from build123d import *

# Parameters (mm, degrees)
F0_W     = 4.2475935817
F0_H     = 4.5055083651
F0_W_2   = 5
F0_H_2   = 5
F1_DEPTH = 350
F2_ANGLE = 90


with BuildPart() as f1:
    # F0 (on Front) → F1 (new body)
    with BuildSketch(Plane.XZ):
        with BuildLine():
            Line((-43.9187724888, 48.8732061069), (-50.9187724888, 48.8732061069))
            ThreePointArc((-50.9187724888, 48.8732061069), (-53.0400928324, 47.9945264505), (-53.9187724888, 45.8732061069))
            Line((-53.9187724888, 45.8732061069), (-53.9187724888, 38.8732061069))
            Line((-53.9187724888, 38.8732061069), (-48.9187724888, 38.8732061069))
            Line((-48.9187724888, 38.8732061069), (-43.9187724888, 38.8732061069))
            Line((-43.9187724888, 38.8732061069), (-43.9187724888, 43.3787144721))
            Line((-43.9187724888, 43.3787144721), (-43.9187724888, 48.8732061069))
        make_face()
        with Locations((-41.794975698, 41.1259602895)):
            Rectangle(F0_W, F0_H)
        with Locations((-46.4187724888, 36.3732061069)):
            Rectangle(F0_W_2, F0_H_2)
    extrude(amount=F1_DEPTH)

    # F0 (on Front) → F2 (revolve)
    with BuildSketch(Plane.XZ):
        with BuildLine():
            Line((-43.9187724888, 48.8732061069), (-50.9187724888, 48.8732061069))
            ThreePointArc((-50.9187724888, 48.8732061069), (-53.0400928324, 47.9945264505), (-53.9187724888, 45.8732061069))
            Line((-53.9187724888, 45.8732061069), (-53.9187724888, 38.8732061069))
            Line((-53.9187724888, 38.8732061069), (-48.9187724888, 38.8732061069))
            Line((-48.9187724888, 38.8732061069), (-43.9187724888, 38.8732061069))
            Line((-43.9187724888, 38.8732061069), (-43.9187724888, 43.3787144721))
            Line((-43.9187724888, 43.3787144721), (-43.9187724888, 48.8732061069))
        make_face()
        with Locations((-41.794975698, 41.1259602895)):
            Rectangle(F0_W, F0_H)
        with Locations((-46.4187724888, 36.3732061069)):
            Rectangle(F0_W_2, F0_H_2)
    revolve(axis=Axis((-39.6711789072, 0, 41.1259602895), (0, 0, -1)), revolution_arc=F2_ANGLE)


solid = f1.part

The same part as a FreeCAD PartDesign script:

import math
import FreeCAD as App
import Part
import Sketcher
Q = App.Units.Quantity

doc = App.newDocument("Part")
body = doc.addObject("PartDesign::Body", "Body")

sketch1 = body.newObject("Sketcher::SketchObject", "Sketch")
sketch1.AttachmentSupport = (doc.getObject("XZ_Plane"), [""])
sketch1.MapMode = "FlatFace"
sketch1.addGeometry([
    Part.LineSegment(App.Vector(-43.9, 48.9, 0), App.Vector(-50.9, 48.9, 0)),
    Part.ArcOfCircle(Part.Circle(App.Vector(-50.9, 45.9, 0), App.Vector(0, 0, 1), 3), math.radians(90), math.radians(180)),
    Part.LineSegment(App.Vector(-53.9, 45.9, 0), App.Vector(-53.9, 38.9, 0)),
    Part.LineSegment(App.Vector(-53.9, 38.9, 0), App.Vector(-48.9, 38.9, 0)),
    Part.LineSegment(App.Vector(-48.9, 38.9, 0), App.Vector(-48.9, 33.9, 0)),
    Part.LineSegment(App.Vector(-48.9, 33.9, 0), App.Vector(-43.9, 33.9, 0)),
    Part.LineSegment(App.Vector(-43.9, 33.9, 0), App.Vector(-43.9, 38.9, 0)),
    Part.LineSegment(App.Vector(-43.9, 38.9, 0), App.Vector(-39.7, 38.9, 0)),
    Part.LineSegment(App.Vector(-39.7, 38.9, 0), App.Vector(-39.7, 43.4, 0)),
    Part.LineSegment(App.Vector(-39.7, 43.4, 0), App.Vector(-43.9, 43.4, 0)),
    Part.LineSegment(App.Vector(-43.9, 43.4, 0), App.Vector(-43.9, 48.9, 0)),
], False)
sketch1.addConstraint([
    Sketcher.Constraint("Tangent", 0, 2, 1, 1),
    Sketcher.Constraint("Tangent", 1, 2, 2, 1),
    Sketcher.Constraint("Coincident", 2, 2, 3, 1),
    Sketcher.Constraint("Coincident", 3, 2, 4, 1),
    Sketcher.Constraint("Coincident", 4, 2, 5, 1),
    Sketcher.Constraint("Coincident", 5, 2, 6, 1),
    Sketcher.Constraint("Coincident", 6, 2, 7, 1),
    Sketcher.Constraint("Coincident", 7, 2, 8, 1),
    Sketcher.Constraint("Coincident", 8, 2, 9, 1),
    Sketcher.Constraint("Coincident", 9, 2, 10, 1),
    Sketcher.Constraint("Coincident", 10, 2, 0, 1),
    Sketcher.Constraint("Horizontal", 0),
    Sketcher.Constraint("Vertical", 2),
    Sketcher.Constraint("Horizontal", 3),
    Sketcher.Constraint("Vertical", 4),
    Sketcher.Constraint("Horizontal", 5),
    Sketcher.Constraint("Vertical", 6),
    Sketcher.Constraint("Horizontal", 7),
    Sketcher.Constraint("Vertical", 8),
    Sketcher.Constraint("Horizontal", 9),
    Sketcher.Constraint("Vertical", 10),
    Sketcher.Constraint("Horizontal", 3, 2, 6, 2),
    Sketcher.Constraint("Vertical", 6, 2, 9, 2),
    Sketcher.Constraint("Equal", 3, 5),
    Sketcher.Constraint("Equal", 0, 2),
    Sketcher.Constraint("Equal", 5, 4),
    Sketcher.Constraint("Radius", 1, Q("3 mm")),
    Sketcher.Constraint("DistanceX", 0, 2, 0, 1, Q("7 mm")),
    Sketcher.Constraint("DistanceY", 8, 1, 8, 2, Q("4.505508 mm")),
    Sketcher.Constraint("DistanceX", 7, 1, 7, 2, Q("4.247594 mm")),
    Sketcher.Constraint("DistanceX", 7, 2, -1, 1, Q("39.671179 mm")),
    Sketcher.Constraint("DistanceY", -1, 1, 1, 3, Q("45.873206 mm")),
])
pad1 = body.newObject("PartDesign::Pad", "Pad")
pad1.Profile = sketch1
pad1.Length = 350

sketch2 = body.newObject("Sketcher::SketchObject", "Sketch001")
sketch2.AttachmentSupport = (doc.getObject("XZ_Plane"), [""])
sketch2.MapMode = "FlatFace"
sketch2.addGeometry([
    Part.LineSegment(App.Vector(-43.9, 48.9, 0), App.Vector(-50.9, 48.9, 0)),
    Part.ArcOfCircle(Part.Circle(App.Vector(-50.9, 45.9, 0), App.Vector(0, 0, 1), 3), math.radians(90), math.radians(180)),
    Part.LineSegment(App.Vector(-53.9, 45.9, 0), App.Vector(-53.9, 38.9, 0)),
    Part.LineSegment(App.Vector(-53.9, 38.9, 0), App.Vector(-48.9, 38.9, 0)),
    Part.LineSegment(App.Vector(-48.9, 38.9, 0), App.Vector(-48.9, 33.9, 0)),
    Part.LineSegment(App.Vector(-48.9, 33.9, 0), App.Vector(-43.9, 33.9, 0)),
    Part.LineSegment(App.Vector(-43.9, 33.9, 0), App.Vector(-43.9, 38.9, 0)),
    Part.LineSegment(App.Vector(-43.9, 38.9, 0), App.Vector(-39.7, 38.9, 0)),
    Part.LineSegment(App.Vector(-39.7, 38.9, 0), App.Vector(-39.7, 43.4, 0)),
    Part.LineSegment(App.Vector(-39.7, 43.4, 0), App.Vector(-43.9, 43.4, 0)),
    Part.LineSegment(App.Vector(-43.9, 43.4, 0), App.Vector(-43.9, 48.9, 0)),
], False)
sketch2.addGeometry(Part.LineSegment(App.Vector(-39.7, 48.9, 0), App.Vector(-39.7, 33.9, 0)), True)
sketch2.addConstraint([
    Sketcher.Constraint("Tangent", 0, 2, 1, 1),
    Sketcher.Constraint("Tangent", 1, 2, 2, 1),
    Sketcher.Constraint("Coincident", 2, 2, 3, 1),
    Sketcher.Constraint("Coincident", 3, 2, 4, 1),
    Sketcher.Constraint("Coincident", 4, 2, 5, 1),
    Sketcher.Constraint("Coincident", 5, 2, 6, 1),
    Sketcher.Constraint("Coincident", 6, 2, 7, 1),
    Sketcher.Constraint("Coincident", 7, 2, 8, 1),
    Sketcher.Constraint("Coincident", 8, 2, 9, 1),
    Sketcher.Constraint("Coincident", 9, 2, 10, 1),
    Sketcher.Constraint("Coincident", 10, 2, 0, 1),
    Sketcher.Constraint("Horizontal", 0),
    Sketcher.Constraint("Vertical", 2),
    Sketcher.Constraint("Horizontal", 3),
    Sketcher.Constraint("Vertical", 4),
    Sketcher.Constraint("Horizontal", 5),
    Sketcher.Constraint("Vertical", 6),
    Sketcher.Constraint("Horizontal", 7),
    Sketcher.Constraint("Vertical", 8),
    Sketcher.Constraint("Horizontal", 9),
    Sketcher.Constraint("Vertical", 10),
    Sketcher.Constraint("Vertical", 11),
    Sketcher.Constraint("Horizontal", 3, 2, 6, 2),
    Sketcher.Constraint("Horizontal", 10, 2, 11, 1),
    Sketcher.Constraint("Horizontal", 5, 2, 11, 2),
    Sketcher.Constraint("Vertical", 6, 2, 9, 2),
    Sketcher.Constraint("Vertical", 8, 2, 11, 1),
    Sketcher.Constraint("Equal", 3, 5),
    Sketcher.Constraint("Equal", 0, 2),
    Sketcher.Constraint("Equal", 5, 4),
    Sketcher.Constraint("Radius", 1, Q("3 mm")),
    Sketcher.Constraint("DistanceX", 0, 2, 0, 1, Q("7 mm")),
    Sketcher.Constraint("DistanceY", 8, 1, 8, 2, Q("4.505508 mm")),
    Sketcher.Constraint("DistanceX", 7, 1, 7, 2, Q("4.247594 mm")),
    Sketcher.Constraint("DistanceX", 7, 2, -1, 1, Q("39.671179 mm")),
    Sketcher.Constraint("DistanceY", -1, 1, 1, 3, Q("45.873206 mm")),
])
revolution = body.newObject("PartDesign::Revolution", "Revolution")
revolution.Profile = sketch2
revolution.ReferenceAxis = (sketch2, ["Axis0"])
revolution.Angle = 90

doc.recompute()
